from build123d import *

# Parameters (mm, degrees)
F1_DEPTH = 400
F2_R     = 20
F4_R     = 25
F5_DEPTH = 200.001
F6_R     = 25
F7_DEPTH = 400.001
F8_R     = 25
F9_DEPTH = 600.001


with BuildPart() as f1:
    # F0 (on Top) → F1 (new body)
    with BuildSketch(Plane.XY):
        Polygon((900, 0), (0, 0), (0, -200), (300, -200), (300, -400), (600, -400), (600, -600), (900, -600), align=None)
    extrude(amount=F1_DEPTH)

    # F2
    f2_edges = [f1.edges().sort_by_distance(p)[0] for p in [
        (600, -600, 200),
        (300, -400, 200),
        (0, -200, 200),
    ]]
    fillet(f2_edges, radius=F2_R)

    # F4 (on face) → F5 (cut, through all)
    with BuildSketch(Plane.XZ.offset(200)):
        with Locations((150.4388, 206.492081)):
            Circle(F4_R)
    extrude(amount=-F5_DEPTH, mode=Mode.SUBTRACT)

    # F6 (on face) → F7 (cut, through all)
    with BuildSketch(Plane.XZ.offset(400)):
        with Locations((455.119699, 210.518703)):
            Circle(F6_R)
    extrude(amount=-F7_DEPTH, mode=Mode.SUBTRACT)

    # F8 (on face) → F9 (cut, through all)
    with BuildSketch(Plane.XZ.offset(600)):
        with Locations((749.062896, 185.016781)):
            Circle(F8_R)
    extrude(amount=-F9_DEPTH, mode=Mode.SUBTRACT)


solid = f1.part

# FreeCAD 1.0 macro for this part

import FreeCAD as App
import Part
import Sketcher


def edges_at(feature, points):
    """Names of the edges that pass closest to the given points."""
    edges = feature.Shape.Edges
    near = lambda p: min(range(len(edges)), key=lambda i: edges[i].distToShape(Part.Vertex(*p))[0])
    return sorted({f"Edge{near(p) + 1}" for p in points})


def add_polygon(sketch, points):
    """Adds a closed chain of lines whose ends are joined by coincident constraints."""
    first, n = sketch.GeometryCount, len(points)
    for a, b in zip(points, points[1:] + points[:1]):
        sketch.addGeometry(Part.LineSegment(App.Vector(*a, 0), App.Vector(*b, 0)), False)
    for i in range(n):
        sketch.addConstraint(Sketcher.Constraint("Coincident", first + i, 2, first + (i + 1) % n, 1))

doc = App.newDocument("Part")
body = doc.addObject("PartDesign::Body", "Body")

# Sketch on XY plane
sketch1 = doc.addObject("Sketcher::SketchObject", "Sketch")
body.addObject(sketch1)
sketch1.AttachmentSupport = (doc.XY_Plane, [""])
sketch1.MapMode = "FlatFace"
add_polygon(sketch1, [(900, 0), (0, 0), (0, -200), (300, -200), (300, -400), (600, -400), (600, -600), (900, -600)])  # lines 0-7
sketch1.addConstraint(Sketcher.Constraint("Horizontal", 0))
sketch1.addConstraint(Sketcher.Constraint("Vertical", 1))
sketch1.addConstraint(Sketcher.Constraint("Horizontal", 2))
sketch1.addConstraint(Sketcher.Constraint("Vertical", 3))
sketch1.addConstraint(Sketcher.Constraint("Horizontal", 4))
sketch1.addConstraint(Sketcher.Constraint("Vertical", 5))
sketch1.addConstraint(Sketcher.Constraint("Horizontal", 6))
sketch1.addConstraint(Sketcher.Constraint("Vertical", 7))
sketch1.addConstraint(Sketcher.Constraint("Coincident", 0, 2, -1, 1))
sketch1.addConstraint(Sketcher.Constraint("Equal", 2, 4))
sketch1.addConstraint(Sketcher.Constraint("Equal", 4, 6))
sketch1.addConstraint(Sketcher.Constraint("Equal", 1, 3))
sketch1.addConstraint(Sketcher.Constraint("Equal", 3, 5))
sketch1.addConstraint(Sketcher.Constraint("DistanceX", 0, 2, 0, 1, 900.0))
sketch1.addConstraint(Sketcher.Constraint("DistanceY", 1, 2, 1, 1, 200.0))
pad1 = doc.addObject("PartDesign::Pad", "Pad")
body.addObject(pad1)
pad1.Profile = sketch1
pad1.Length = 400
doc.recompute()

fillet = doc.addObject("PartDesign::Fillet", "Fillet")
body.addObject(fillet)
fillet.Base = (pad1, edges_at(pad1, [(600, -600, 200), (300, -400, 200), (0, -200, 200)]))
fillet.Radius = 20

# Sketch on XZ plane
sketch2 = doc.addObject("Sketcher::SketchObject", "Sketch001")
body.addObject(sketch2)
sketch2.AttachmentSupport = (doc.XZ_Plane, [""])
sketch2.MapMode = "FlatFace"
sketch2.AttachmentOffset = App.Placement(App.Vector(0, 0, 200), App.Rotation())
sketch2.addGeometry(Part.Circle(App.Vector(150, 206, 0), App.Vector(0, 0, 1), 25), False)
sketch2.addConstraint(Sketcher.Constraint("Diameter", 0, 50.0))
sketch2.addConstraint(Sketcher.Constraint("DistanceX", -1, 1, 0, 3, 150.4388))
sketch2.addConstraint(Sketcher.Constraint("DistanceY", -1, 1, 0, 3, 206.492081))
pocket1 = doc.addObject("PartDesign::Pocket", "Pocket")
body.addObject(pocket1)
pocket1.Profile = sketch2
pocket1.Type = "ThroughAll"

# Sketch on XZ plane
sketch3 = doc.addObject("Sketcher::SketchObject", "Sketch002")
body.addObject(sketch3)
sketch3.AttachmentSupport = (doc.XZ_Plane, [""])
sketch3.MapMode = "FlatFace"
sketch3.AttachmentOffset = App.Placement(App.Vector(0, 0, 400), App.Rotation())
sketch3.addGeometry(Part.Circle(App.Vector(455, 211, 0), App.Vector(0, 0, 1), 25), False)
sketch3.addConstraint(Sketcher.Constraint("Diameter", 0, 50.0))
sketch3.addConstraint(Sketcher.Constraint("DistanceX", -1, 1, 0, 3, 455.119699))
sketch3.addConstraint(Sketcher.Constraint("DistanceY", -1, 1, 0, 3, 210.518703))
pocket2 = doc.addObject("PartDesign::Pocket", "Pocket001")
body.addObject(pocket2)
pocket2.Profile = sketch3
pocket2.Type = "ThroughAll"

# Sketch on XZ plane
sketch4 = doc.addObject("Sketcher::SketchObject", "Sketch003")
body.addObject(sketch4)
sketch4.AttachmentSupport = (doc.XZ_Plane, [""])
sketch4.MapMode = "FlatFace"
sketch4.AttachmentOffset = App.Placement(App.Vector(0, 0, 600), App.Rotation())
sketch4.addGeometry(Part.Circle(App.Vector(749, 185, 0), App.Vector(0, 0, 1), 25), False)
sketch4.addConstraint(Sketcher.Constraint("Diameter", 0, 50.0))
sketch4.addConstraint(Sketcher.Constraint("DistanceY", -1, 1, 0, 3, 185.016781))
sketch4.addConstraint(Sketcher.Constraint("DistanceX", -1, 1, 0, 3, 749.062896))
pocket3 = doc.addObject("PartDesign::Pocket", "Pocket002")
body.addObject(pocket3)
pocket3.Profile = sketch4
pocket3.Type = "ThroughAll"

doc.recompute()
